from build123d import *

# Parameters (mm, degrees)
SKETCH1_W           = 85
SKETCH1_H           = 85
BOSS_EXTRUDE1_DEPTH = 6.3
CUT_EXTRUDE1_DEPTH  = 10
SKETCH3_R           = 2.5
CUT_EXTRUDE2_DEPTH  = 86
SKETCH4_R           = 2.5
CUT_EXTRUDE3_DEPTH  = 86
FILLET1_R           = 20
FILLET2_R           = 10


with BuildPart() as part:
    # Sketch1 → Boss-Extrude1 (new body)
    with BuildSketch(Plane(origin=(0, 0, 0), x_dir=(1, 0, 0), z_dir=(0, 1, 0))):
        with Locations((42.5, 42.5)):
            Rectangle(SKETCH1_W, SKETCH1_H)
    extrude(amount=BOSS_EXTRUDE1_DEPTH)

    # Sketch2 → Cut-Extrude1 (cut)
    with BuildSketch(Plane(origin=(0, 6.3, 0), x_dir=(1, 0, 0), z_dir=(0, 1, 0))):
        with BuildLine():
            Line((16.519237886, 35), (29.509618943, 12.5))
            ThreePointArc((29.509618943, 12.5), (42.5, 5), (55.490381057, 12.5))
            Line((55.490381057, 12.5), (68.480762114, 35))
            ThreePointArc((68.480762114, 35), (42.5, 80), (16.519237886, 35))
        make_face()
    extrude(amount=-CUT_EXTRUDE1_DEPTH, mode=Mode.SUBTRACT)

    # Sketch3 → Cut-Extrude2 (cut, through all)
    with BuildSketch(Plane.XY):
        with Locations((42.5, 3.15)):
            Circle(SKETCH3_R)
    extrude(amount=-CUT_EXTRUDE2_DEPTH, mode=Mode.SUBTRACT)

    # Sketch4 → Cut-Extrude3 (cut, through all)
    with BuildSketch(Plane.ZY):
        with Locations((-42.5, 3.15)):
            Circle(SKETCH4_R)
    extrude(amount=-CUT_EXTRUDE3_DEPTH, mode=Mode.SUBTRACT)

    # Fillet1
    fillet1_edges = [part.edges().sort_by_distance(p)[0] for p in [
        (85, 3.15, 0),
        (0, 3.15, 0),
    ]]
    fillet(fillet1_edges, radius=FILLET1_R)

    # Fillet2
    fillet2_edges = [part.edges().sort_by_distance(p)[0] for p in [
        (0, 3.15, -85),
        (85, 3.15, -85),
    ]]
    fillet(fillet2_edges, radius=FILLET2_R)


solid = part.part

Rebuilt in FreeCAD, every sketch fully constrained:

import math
import FreeCAD as App
import Part
import Sketcher
Q = App.Units.Quantity


def edges_at(feature, points):
    """Names of the edges that pass closest to the given points."""
    edges = feature.Shape.Edges
    near = lambda p: min(range(len(edges)), key=lambda i: edges[i].distToShape(Part.Vertex(*p))[0])
    return sorted({f"Edge{near(p) + 1}" for p in points})

doc = App.newDocument("Part")
body = doc.addObject("PartDesign::Body", "Body")

# Sketch on XZ plane
sketch1 = body.newObject("Sketcher::SketchObject", "Sketch")
sketch1.AttachmentSupport = (doc.getObject("XZ_Plane"), [""])
sketch1.MapMode = "FlatFace"
sketch1.addGeometry([
    Part.LineSegment(App.Vector(0, -85, 0), App.Vector(0, 0, 0)),
    Part.LineSegment(App.Vector(0, 0, 0), App.Vector(85, 0, 0)),
    Part.LineSegment(App.Vector(85, 0, 0), App.Vector(85, -85, 0)),
    Part.LineSegment(App.Vector(85, -85, 0), App.Vector(0, -85, 0)),
], False)
sketch1.addConstraint([
    Sketcher.Constraint("Coincident", 0, 2, 1, 1),
    Sketcher.Constraint("Coincident", 1, 2, 2, 1),
    Sketcher.Constraint("Coincident", 2, 2, 3, 1),
    Sketcher.Constraint("Coincident", 3, 2, 0, 1),
    Sketcher.Constraint("Vertical", 0),
    Sketcher.Constraint("Horizontal", 1),
    Sketcher.Constraint("Vertical", 2),
    Sketcher.Constraint("Horizontal", 3),
    Sketcher.Constraint("Coincident", 0, 2, -1, 1),
    Sketcher.Constraint("Equal", 3, 0),
    Sketcher.Constraint("DistanceX", 1, 1, 1, 2, 85.0),
])
pad1 = body.newObject("PartDesign::Pad", "Pad")
pad1.Profile = sketch1
pad1.Length = 6.3
pad1.Reversed = True

# Sketch on XZ plane
sketch2 = body.newObject("Sketcher::SketchObject", "Sketch001")
sketch2.AttachmentSupport = (doc.getObject("XZ_Plane"), [""])
sketch2.MapMode = "FlatFace"
sketch2.AttachmentOffset = App.Placement(App.Vector(0, 0, -6.3), App.Rotation())
sketch2.addGeometry([
    Part.LineSegment(App.Vector(16.519238, -35, 0), App.Vector(29.509619, -12.5, 0)),
    Part.ArcOfCircle(Part.Circle(App.Vector(42.5, -20, 0), App.Vector(0, 0, 1), 15), math.radians(30), math.radians(150)),
    Part.LineSegment(App.Vector(55.490381, -12.5, 0), App.Vector(68.480762, -35, 0)),
    Part.ArcOfCircle(Part.Circle(App.Vector(42.5, -50, 0), App.Vector(0, 0, 1), 30), math.radians(150), math.radians(390)),
], False)
sketch2.addConstraint([
    Sketcher.Constraint("Tangent", 0, 2, 1, 2),
    Sketcher.Constraint("Tangent", 1, 1, 2, 1),
    Sketcher.Constraint("Tangent", 2, 2, 3, 2),
    Sketcher.Constraint("Tangent", 3, 1, 0, 1),
    Sketcher.Constraint("Horizontal", 0, 2, 1, 1),
    Sketcher.Constraint("Radius", 1, 15.0),
    Sketcher.Constraint("Radius", 3, 30.0),
    Sketcher.Constraint("Angle", 0, Q("60 deg")),
    Sketcher.Constraint("DistanceY", 1, 3, -1, 1, 20.0),
    Sketcher.Constraint("DistanceX", -1, 1, 1, 3, 42.5),
])
pocket1 = body.newObject("PartDesign::Pocket", "Pocket")
pocket1.Profile = sketch2
pocket1.Length = 10
pocket1.Reversed = True

# Sketch on XY plane
sketch3 = body.newObject("Sketcher::SketchObject", "Sketch002")
sketch3.AttachmentSupport = (doc.getObject("XY_Plane"), [""])
sketch3.MapMode = "FlatFace"
sketch3.addGeometry(Part.Circle(App.Vector(42.5, 3.15, 0), App.Vector(0, 0, 1), 2.5), False)
sketch3.addConstraint([
    Sketcher.Constraint("Diameter", 0, 5.0),
    Sketcher.Constraint("DistanceX", -1, 1, 0, 3, 42.5),
    Sketcher.Constraint("DistanceY", -1, 1, 0, 3, 3.15),
])
pocket2 = body.newObject("PartDesign::Pocket", "Pocket001")
pocket2.Profile = sketch3
pocket2.Type = "ThroughAll"

# Sketch on YZ plane
sketch4 = body.newObject("Sketcher::SketchObject", "Sketch003")
sketch4.AttachmentSupport = (doc.getObject("YZ_Plane"), [""])
sketch4.MapMode = "FlatFace"
sketch4.addGeometry(Part.Circle(App.Vector(3.15, -42.5, 0), App.Vector(0, 0, 1), 2.5), False)
sketch4.addConstraint([
    Sketcher.Constraint("Diameter", 0, 5.0),
    Sketcher.Constraint("DistanceY", 0, 3, -1, 1, 42.5),
    Sketcher.Constraint("DistanceX", -1, 1, 0, 3, 3.15),
])
pocket3 = body.newObject("PartDesign::Pocket", "Pocket002")
pocket3.Profile = sketch4
pocket3.Type = "ThroughAll"
pocket3.Reversed = True
doc.recompute()

fillet = body.newObject("PartDesign::Fillet", "Fillet")
fillet.Base = (pocket3, edges_at(pocket3, [(85, 3.15, 0), (0, 3.15, 0)]))
fillet.Radius = 20
doc.recompute()

fillet2 = body.newObject("PartDesign::Fillet", "Fillet001")
fillet2.Base = (fillet, edges_at(fillet, [(0, 3.15, -85), (85, 3.15, -85)]))
fillet2.Radius = 10

doc.recompute()
